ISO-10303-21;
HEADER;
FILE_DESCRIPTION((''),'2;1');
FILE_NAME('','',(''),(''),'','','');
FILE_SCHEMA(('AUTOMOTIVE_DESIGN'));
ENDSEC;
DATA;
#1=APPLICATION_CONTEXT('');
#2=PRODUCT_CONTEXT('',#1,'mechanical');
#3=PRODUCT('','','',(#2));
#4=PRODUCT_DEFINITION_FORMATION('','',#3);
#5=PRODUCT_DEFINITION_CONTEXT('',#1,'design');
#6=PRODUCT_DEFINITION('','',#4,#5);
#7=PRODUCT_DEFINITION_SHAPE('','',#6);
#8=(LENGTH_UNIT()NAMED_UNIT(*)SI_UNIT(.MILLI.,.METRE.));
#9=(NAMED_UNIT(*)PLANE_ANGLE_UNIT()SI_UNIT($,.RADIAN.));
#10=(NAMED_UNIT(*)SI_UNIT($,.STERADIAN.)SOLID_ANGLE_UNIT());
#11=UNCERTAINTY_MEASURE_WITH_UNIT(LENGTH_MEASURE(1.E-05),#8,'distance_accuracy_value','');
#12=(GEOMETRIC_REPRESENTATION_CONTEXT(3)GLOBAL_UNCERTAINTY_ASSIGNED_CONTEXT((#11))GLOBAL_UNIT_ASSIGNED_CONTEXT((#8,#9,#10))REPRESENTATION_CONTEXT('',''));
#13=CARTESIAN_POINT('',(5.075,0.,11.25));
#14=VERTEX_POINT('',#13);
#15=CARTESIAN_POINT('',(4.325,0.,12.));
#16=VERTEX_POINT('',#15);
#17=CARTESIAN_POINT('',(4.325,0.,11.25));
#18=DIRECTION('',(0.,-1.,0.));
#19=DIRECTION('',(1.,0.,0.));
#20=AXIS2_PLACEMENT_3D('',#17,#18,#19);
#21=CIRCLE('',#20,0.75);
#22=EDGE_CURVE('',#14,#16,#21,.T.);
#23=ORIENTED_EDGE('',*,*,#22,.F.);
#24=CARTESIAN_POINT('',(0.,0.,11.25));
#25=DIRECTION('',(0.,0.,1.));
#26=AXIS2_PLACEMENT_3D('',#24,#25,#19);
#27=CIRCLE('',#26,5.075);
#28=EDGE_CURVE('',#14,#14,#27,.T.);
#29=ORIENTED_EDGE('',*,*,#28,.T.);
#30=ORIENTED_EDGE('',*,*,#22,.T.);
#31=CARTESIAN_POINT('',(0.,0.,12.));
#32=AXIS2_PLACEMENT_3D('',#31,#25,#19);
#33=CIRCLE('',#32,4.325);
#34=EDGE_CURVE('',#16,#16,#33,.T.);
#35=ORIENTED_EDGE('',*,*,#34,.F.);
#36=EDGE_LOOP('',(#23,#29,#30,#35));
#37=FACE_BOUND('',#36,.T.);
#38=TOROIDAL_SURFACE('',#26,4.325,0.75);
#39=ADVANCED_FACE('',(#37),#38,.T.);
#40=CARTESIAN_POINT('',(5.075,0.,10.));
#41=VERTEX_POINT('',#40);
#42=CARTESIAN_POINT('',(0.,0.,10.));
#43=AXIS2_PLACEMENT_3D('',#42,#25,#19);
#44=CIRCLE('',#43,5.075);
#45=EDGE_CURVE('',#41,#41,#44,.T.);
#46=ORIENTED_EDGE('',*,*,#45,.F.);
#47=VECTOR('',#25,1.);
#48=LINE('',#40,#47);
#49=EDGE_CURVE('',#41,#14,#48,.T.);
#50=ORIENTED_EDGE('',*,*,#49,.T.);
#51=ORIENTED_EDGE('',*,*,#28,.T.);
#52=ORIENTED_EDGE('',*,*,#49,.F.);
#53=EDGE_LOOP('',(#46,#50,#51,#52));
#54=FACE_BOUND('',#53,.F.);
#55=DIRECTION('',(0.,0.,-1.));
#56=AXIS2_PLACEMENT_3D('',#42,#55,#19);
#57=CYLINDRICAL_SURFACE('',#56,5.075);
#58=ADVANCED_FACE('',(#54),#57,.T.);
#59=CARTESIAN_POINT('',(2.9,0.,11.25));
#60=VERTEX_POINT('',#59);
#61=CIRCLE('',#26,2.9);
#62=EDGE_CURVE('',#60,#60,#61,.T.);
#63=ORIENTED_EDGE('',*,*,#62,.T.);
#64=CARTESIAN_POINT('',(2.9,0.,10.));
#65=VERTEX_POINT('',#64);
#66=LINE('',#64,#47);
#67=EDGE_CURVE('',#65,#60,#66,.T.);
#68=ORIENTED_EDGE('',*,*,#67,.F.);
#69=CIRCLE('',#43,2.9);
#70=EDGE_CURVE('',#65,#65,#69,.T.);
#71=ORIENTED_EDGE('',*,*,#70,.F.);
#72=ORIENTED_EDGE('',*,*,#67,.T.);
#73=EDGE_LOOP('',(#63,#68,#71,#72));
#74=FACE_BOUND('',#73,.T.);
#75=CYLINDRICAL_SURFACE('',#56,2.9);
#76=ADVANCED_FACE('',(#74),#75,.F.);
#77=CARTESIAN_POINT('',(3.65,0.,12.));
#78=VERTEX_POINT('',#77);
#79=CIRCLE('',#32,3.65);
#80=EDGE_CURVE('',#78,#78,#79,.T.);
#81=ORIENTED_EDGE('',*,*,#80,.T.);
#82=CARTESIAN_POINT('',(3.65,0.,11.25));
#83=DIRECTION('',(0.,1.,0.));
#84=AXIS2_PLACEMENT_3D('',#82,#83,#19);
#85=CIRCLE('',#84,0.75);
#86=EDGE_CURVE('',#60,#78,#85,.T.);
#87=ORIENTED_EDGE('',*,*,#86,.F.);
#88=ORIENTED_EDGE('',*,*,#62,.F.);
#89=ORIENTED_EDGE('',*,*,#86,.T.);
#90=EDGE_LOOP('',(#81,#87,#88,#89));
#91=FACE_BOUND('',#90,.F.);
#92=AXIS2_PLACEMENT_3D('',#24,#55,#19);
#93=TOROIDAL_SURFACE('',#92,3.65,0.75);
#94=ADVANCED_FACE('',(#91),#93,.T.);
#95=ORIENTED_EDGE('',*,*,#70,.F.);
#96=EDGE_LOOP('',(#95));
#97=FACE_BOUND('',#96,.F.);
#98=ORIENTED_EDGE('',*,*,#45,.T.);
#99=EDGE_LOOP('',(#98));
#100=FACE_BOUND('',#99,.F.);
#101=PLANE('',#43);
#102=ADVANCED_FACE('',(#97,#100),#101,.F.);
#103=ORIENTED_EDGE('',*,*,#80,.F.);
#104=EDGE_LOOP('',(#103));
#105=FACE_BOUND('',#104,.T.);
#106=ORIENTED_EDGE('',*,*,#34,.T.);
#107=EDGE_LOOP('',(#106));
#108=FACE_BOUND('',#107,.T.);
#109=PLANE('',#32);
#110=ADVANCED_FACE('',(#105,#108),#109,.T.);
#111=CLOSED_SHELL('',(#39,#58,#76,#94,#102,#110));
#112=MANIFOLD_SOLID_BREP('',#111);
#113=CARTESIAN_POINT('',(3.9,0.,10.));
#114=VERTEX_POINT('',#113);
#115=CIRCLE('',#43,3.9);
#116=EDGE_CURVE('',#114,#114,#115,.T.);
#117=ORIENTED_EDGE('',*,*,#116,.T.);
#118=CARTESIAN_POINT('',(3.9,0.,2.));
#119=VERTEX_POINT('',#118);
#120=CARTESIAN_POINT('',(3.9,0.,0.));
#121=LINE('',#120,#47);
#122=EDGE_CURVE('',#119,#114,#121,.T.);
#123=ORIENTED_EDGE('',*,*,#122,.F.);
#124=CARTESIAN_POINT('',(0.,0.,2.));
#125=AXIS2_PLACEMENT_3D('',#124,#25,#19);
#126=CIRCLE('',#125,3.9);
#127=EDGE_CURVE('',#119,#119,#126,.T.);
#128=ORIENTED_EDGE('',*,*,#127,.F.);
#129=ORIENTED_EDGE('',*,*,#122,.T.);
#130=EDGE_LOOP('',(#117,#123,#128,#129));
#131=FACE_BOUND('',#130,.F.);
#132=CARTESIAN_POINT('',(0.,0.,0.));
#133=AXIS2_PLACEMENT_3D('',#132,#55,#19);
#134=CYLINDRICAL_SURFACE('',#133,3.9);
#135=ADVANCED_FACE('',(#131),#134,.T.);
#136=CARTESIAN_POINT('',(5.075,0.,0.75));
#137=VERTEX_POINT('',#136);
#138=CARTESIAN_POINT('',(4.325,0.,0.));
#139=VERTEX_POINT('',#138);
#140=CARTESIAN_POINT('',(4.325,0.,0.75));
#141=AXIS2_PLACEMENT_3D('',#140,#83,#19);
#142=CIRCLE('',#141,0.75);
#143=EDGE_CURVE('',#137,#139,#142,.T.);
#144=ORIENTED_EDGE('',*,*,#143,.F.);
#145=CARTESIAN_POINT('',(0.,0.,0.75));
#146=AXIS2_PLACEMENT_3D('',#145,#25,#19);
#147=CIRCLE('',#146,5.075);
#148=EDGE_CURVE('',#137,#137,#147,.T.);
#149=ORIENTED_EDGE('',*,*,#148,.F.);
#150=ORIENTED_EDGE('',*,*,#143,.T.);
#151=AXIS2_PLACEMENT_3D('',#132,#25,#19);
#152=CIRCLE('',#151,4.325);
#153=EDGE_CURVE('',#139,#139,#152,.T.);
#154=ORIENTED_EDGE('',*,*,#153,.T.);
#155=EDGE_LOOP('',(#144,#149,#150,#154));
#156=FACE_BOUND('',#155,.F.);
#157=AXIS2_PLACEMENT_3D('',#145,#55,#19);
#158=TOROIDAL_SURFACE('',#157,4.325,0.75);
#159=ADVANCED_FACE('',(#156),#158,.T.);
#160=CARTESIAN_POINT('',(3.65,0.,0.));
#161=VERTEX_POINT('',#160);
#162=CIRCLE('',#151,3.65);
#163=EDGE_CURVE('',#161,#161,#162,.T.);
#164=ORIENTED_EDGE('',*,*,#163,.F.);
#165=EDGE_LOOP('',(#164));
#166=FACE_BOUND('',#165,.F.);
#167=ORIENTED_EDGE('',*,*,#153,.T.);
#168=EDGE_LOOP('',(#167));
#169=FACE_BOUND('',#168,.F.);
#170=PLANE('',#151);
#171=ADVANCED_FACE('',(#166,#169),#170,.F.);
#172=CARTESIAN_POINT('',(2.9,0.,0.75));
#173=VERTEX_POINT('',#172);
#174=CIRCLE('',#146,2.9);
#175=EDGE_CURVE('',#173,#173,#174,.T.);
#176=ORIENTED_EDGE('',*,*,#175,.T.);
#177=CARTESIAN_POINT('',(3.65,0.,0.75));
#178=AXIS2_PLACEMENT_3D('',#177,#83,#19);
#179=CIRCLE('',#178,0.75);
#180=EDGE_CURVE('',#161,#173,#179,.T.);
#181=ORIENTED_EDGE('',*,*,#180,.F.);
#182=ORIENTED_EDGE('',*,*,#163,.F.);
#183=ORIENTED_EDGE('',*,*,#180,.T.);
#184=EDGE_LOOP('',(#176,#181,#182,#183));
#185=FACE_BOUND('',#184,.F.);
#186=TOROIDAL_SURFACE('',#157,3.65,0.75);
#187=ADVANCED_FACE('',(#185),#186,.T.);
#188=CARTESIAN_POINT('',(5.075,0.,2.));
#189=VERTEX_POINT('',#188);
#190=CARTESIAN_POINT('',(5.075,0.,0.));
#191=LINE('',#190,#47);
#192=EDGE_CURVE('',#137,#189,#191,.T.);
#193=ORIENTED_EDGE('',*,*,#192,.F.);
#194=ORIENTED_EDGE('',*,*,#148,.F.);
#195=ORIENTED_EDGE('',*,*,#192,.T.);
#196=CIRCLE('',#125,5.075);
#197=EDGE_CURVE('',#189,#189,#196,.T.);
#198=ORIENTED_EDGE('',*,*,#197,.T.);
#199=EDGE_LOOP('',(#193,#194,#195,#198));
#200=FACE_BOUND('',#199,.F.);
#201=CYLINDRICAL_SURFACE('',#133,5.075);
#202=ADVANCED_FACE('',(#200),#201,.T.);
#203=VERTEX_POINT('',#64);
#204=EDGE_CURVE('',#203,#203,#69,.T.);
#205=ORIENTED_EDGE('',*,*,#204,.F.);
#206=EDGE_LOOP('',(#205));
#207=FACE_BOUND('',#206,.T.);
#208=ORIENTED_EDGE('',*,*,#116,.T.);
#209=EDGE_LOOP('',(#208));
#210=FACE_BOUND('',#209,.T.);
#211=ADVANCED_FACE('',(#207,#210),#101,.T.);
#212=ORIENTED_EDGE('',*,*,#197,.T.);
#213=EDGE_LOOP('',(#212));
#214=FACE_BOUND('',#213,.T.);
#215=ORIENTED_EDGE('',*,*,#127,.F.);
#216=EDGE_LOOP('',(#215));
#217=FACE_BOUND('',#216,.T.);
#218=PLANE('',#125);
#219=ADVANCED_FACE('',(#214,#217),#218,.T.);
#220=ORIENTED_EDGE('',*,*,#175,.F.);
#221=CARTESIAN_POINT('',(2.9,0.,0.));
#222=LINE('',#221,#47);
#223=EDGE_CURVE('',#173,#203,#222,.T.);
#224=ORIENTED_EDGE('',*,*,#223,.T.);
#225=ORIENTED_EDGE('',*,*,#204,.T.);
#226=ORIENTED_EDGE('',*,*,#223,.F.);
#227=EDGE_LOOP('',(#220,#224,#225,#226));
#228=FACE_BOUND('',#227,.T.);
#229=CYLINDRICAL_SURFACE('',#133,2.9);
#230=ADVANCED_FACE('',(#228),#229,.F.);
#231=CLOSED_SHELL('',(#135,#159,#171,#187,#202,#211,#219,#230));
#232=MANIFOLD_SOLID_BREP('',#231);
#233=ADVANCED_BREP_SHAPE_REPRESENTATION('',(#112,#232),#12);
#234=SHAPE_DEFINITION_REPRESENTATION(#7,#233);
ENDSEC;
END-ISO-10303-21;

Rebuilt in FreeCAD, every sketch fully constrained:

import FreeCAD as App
import Part
import Sketcher
Q = App.Units.Quantity


def edges_at(feature, points):
    """Names of the edges that pass closest to the given points."""
    edges = feature.Shape.Edges
    near = lambda p: min(range(len(edges)), key=lambda i: edges[i].distToShape(Part.Vertex(*p))[0])
    return sorted({f"Edge{near(p) + 1}" for p in points})

doc = App.newDocument("Part")
body = doc.addObject("PartDesign::Body", "Body")

sketch1 = doc.addObject("Sketcher::SketchObject", "Sketch")
body.addObject(sketch1)
sketch1.AttachmentSupport = (doc.XY_Plane, [""])
sketch1.MapMode = "FlatFace"
sketch1.addGeometry([
    Part.Circle(App.Vector(0, 0, 0), App.Vector(0, 0, 1), 3.9),
    Part.Circle(App.Vector(0, 0, 0), App.Vector(0, 0, 1), 2.9),
], False)
sketch1.addConstraint([
    Sketcher.Constraint("Coincident", 0, 3, -1, 1),
    Sketcher.Constraint("Coincident", 1, 3, -1, 1),
    Sketcher.Constraint("Diameter", 0, Q("7.8 mm")),
    Sketcher.Constraint("Diameter", 1, Q("5.8 mm")),
])
pad1 = doc.addObject("PartDesign::Pad", "Pad")
body.addObject(pad1)
pad1.Profile = sketch1
pad1.Length = 10

sketch2 = doc.addObject("Sketcher::SketchObject", "Sketch001")
body.addObject(sketch2)
sketch2.AttachmentSupport = (doc.XY_Plane, [""])
sketch2.MapMode = "FlatFace"
sketch2.addGeometry([
    Part.Circle(App.Vector(0, 0, 0), App.Vector(0, 0, 1), 5.1),
    Part.Circle(App.Vector(0, 0, 0), App.Vector(0, 0, 1), 3.9),
], False)
sketch2.addConstraint([
    Sketcher.Constraint("Coincident", 0, 3, -1, 1),
    Sketcher.Constraint("Coincident", 1, 3, -1, 1),
    Sketcher.Constraint("Diameter", 1, Q("7.8 mm")),
    Sketcher.Constraint("Diameter", 0, Q("10.15 mm")),
])
pad2 = doc.addObject("PartDesign::Pad", "Pad001")
body.addObject(pad2)
pad2.Profile = sketch2
pad2.Length = 2
doc.recompute()

fillet = doc.addObject("PartDesign::Fillet", "Fillet")
body.addObject(fillet)
fillet.Base = (pad2, edges_at(pad2, [(-5.075, 0, 0), (-2.9, 0, 0)]))
fillet.Radius = 0.75
body2 = doc.addObject("PartDesign::Body", "Body001")

sketch3 = doc.addObject("Sketcher::SketchObject", "Sketch002")
body2.addObject(sketch3)
sketch3.AttachmentSupport = (doc.getObject("XY_Plane001"), [""])
sketch3.MapMode = "FlatFace"
sketch3.AttachmentOffset = App.Placement(App.Vector(0, 0, 10), App.Rotation())
sketch3.addGeometry([
    Part.Circle(App.Vector(0, 0, 0), App.Vector(0, 0, 1), 5.1),
    Part.Circle(App.Vector(0, 0, 0), App.Vector(0, 0, 1), 2.9),
], False)
sketch3.addConstraint([
    Sketcher.Constraint("Coincident", 0, 3, -1, 1),
    Sketcher.Constraint("Coincident", 1, 3, -1, 1),
    Sketcher.Constraint("Diameter", 1, Q("5.8 mm")),
    Sketcher.Constraint("Diameter", 0, Q("10.15 mm")),
])
pad3 = doc.addObject("PartDesign::Pad", "Pad002")
body2.addObject(pad3)
pad3.Profile = sketch3
pad3.Length = 2
doc.recompute()

fillet2 = doc.addObject("PartDesign::Fillet", "Fillet001")
body2.addObject(fillet2)
fillet2.Base = (pad3, edges_at(pad3, [(-5.075, 0, 12), (-2.9, 0, 12)]))
fillet2.Radius = 0.75

doc.recompute()
